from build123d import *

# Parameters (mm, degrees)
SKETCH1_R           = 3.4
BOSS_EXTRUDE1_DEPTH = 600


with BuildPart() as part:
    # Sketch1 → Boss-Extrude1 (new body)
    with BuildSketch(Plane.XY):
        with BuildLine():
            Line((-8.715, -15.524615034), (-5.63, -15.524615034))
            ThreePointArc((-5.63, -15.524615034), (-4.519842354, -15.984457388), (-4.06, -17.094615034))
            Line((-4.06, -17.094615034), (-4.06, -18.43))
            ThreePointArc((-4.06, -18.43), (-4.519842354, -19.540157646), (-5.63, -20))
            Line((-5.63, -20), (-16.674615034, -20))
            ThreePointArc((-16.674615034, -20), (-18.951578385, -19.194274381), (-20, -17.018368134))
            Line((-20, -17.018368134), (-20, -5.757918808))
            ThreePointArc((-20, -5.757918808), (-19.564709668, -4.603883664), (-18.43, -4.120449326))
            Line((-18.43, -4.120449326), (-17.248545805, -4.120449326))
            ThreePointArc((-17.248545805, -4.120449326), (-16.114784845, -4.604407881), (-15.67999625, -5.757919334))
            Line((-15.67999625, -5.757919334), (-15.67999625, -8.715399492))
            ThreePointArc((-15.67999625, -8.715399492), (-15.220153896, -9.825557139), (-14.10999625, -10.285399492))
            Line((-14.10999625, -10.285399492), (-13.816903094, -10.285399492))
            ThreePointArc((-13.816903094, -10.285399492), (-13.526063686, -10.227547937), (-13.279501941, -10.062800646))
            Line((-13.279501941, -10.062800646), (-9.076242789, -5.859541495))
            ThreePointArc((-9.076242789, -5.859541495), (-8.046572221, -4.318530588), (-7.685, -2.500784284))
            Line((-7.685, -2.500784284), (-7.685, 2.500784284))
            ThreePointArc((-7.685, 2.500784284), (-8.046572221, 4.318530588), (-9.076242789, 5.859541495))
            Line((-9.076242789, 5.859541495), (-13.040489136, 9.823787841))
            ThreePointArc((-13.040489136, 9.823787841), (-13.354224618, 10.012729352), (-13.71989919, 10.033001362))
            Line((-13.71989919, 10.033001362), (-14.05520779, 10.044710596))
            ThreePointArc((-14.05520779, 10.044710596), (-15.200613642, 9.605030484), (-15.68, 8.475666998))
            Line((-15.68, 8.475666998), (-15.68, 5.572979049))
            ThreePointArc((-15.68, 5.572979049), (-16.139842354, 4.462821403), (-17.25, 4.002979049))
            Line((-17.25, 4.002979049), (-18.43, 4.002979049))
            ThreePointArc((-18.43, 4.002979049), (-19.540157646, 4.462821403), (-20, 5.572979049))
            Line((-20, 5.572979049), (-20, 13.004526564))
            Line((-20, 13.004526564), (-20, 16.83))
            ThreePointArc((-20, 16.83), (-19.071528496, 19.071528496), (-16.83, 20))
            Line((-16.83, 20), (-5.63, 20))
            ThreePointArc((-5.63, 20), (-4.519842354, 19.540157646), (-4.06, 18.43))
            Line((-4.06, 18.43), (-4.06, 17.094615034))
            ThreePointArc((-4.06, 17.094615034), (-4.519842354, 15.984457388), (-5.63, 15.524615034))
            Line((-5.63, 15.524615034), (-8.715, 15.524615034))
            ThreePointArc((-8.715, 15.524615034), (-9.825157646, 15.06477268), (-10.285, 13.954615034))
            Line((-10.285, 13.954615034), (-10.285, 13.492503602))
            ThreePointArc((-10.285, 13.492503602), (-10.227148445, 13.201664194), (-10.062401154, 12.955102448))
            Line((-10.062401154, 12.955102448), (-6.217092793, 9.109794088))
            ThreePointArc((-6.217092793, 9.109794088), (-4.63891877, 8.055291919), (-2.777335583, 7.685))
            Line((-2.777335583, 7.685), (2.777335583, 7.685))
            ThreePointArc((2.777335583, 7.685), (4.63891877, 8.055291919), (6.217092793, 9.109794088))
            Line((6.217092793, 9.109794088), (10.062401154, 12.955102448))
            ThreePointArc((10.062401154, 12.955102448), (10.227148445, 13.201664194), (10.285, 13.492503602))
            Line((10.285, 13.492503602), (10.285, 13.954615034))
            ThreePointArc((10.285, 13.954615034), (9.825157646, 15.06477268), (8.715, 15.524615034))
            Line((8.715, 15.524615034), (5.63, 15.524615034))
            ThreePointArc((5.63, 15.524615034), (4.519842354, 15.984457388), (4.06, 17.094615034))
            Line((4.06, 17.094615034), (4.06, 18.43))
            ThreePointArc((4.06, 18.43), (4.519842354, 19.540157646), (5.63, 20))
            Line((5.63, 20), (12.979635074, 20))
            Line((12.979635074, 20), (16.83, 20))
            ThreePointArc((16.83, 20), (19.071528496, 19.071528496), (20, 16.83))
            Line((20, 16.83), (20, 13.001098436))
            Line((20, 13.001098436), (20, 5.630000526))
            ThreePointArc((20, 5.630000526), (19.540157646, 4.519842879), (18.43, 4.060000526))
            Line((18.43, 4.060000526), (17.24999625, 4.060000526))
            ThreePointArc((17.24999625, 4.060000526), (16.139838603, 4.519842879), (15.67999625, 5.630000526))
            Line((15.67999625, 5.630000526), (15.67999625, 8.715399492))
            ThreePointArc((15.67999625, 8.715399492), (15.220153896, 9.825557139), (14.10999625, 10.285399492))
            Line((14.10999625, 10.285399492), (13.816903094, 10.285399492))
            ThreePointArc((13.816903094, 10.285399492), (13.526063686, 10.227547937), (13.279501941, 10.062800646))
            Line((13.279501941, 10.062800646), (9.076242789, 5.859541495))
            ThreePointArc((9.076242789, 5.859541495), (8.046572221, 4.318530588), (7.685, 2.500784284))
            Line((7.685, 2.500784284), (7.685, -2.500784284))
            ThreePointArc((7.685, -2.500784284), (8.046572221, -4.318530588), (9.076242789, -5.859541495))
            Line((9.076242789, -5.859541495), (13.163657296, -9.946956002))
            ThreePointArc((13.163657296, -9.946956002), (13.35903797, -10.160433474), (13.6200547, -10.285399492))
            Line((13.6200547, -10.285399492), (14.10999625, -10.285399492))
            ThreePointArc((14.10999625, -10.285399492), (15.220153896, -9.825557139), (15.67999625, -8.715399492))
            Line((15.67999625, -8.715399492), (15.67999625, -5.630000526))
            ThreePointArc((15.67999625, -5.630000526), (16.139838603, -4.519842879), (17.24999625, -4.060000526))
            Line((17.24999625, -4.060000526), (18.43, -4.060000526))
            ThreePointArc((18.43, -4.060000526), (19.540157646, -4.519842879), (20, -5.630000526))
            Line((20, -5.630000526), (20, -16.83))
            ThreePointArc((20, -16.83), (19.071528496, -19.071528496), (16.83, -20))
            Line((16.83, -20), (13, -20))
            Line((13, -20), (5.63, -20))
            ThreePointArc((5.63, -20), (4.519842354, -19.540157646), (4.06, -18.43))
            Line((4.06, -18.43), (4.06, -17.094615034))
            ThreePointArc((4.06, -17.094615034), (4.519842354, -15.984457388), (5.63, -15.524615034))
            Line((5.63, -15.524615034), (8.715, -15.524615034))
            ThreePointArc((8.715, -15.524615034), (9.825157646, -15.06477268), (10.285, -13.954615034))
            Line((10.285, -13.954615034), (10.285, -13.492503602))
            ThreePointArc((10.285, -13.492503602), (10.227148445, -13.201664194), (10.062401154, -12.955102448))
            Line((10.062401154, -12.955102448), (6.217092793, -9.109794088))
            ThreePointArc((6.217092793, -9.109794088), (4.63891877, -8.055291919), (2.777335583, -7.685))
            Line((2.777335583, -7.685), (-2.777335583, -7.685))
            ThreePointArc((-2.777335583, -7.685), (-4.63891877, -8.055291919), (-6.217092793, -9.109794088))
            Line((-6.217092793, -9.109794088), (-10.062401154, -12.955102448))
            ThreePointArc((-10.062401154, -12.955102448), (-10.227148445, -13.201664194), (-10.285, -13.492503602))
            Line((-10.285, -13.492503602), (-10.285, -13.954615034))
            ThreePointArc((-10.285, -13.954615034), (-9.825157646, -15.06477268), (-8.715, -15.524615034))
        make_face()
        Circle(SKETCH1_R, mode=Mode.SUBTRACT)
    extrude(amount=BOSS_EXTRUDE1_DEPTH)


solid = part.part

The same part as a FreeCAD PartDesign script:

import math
import FreeCAD as App
import Part
import Sketcher
Q = App.Units.Quantity

doc = App.newDocument("Part")
params = doc.addObject("Spreadsheet::Sheet", "Params")
for row, (alias, value) in enumerate([
    ("sketch1_diameter", "6.8 mm"),
    ("sketch1_radius", "1.57 mm"),
    ("sketch1_radius2", "0.76 mm"),
    ("sketch1_radius3", "3.17 mm"),
    ("sketch1_radius4", "4.75 mm"),
    ("pad1_length", "600 mm"),
], start=1):
    params.set(f"A{row}", alias)
    params.set(f"B{row}", "=" + value)
    params.setAlias(f"B{row}", alias)

body = doc.addObject("PartDesign::Body", "Body")

# Sketch on XY plane
sketch1 = body.newObject("Sketcher::SketchObject", "Sketch")
sketch1.AttachmentSupport = (doc.getObject("XY_Plane"), [""])
sketch1.MapMode = "FlatFace"
sketch1.addGeometry([
    Part.LineSegment(App.Vector(-5.63, -15.52, 0), App.Vector(-8.71, -15.52, 0)),  # 0
    Part.ArcOfCircle(Part.Circle(App.Vector(-8.71, -13.95, 0), App.Vector(0, 0, 1), 1.57), math.radians(-180), math.radians(-90)),  # 1
    Part.LineSegment(App.Vector(-10.29, -13.95, 0), App.Vector(-10.29, -13.49, 0)),  # 2
    Part.ArcOfCircle(Part.Circle(App.Vector(-9.52, -13.49, 0), App.Vector(0, 0, 1), 0.76), math.radians(135), math.radians(180)),  # 3
    Part.LineSegment(App.Vector(-10.06, -12.96, 0), App.Vector(-6.22, -9.11, 0)),  # 4
    Part.ArcOfCircle(Part.Circle(App.Vector(-2.78, -12.55, 0), App.Vector(0, 0, 1), 4.86), math.radians(90), math.radians(135)),  # 5
    Part.LineSegment(App.Vector(-2.78, -7.68, 0), App.Vector(2.78, -7.68, 0)),  # 6
    Part.ArcOfCircle(Part.Circle(App.Vector(2.78, -12.55, 0), App.Vector(0, 0, 1), 4.86), math.radians(45), math.radians(90)),  # 7
    Part.LineSegment(App.Vector(6.22, -9.11, 0), App.Vector(10.06, -12.96, 0)),  # 8
    Part.ArcOfCircle(Part.Circle(App.Vector(9.52, -13.49, 0), App.Vector(0, 0, 1), 0.76), math.radians(0), math.radians(45)),  # 9
    Part.LineSegment(App.Vector(10.29, -13.49, 0), App.Vector(10.29, -13.95, 0)),  # 10
    Part.ArcOfCircle(Part.Circle(App.Vector(8.71, -13.95, 0), App.Vector(0, 0, 1), 1.57), math.radians(-90), math.radians(0)),  # 11
    Part.LineSegment(App.Vector(8.71, -15.52, 0), App.Vector(5.63, -15.52, 0)),  # 12
    Part.ArcOfCircle(Part.Circle(App.Vector(5.63, -17.09, 0), App.Vector(0, 0, 1), 1.57), math.radians(90), math.radians(180)),  # 13
    Part.LineSegment(App.Vector(4.06, -17.09, 0), App.Vector(4.06, -18.43, 0)),  # 14
    Part.ArcOfCircle(Part.Circle(App.Vector(5.63, -18.43, 0), App.Vector(0, 0, 1), 1.57), math.radians(-180), math.radians(-90)),  # 15
    Part.LineSegment(App.Vector(5.63, -20, 0), App.Vector(16.83, -20, 0)),  # 16
    Part.ArcOfCircle(Part.Circle(App.Vector(16.83, -16.83, 0), App.Vector(0, 0, 1), 3.17), math.radians(-90), math.radians(0)),  # 17
    Part.LineSegment(App.Vector(20, -16.83, 0), App.Vector(20, -5.63, 0)),  # 18
    Part.ArcOfCircle(Part.Circle(App.Vector(18.43, -5.63, 0), App.Vector(0, 0, 1), 1.57), math.radians(0), math.radians(90)),  # 19
    Part.LineSegment(App.Vector(18.43, -4.06, 0), App.Vector(17.25, -4.06, 0)),  # 20
    Part.ArcOfCircle(Part.Circle(App.Vector(17.25, -5.63, 0), App.Vector(0, 0, 1), 1.57), math.radians(90), math.radians(180)),  # 21
    Part.LineSegment(App.Vector(15.68, -5.63, 0), App.Vector(15.68, -8.72, 0)),  # 22
    Part.ArcOfCircle(Part.Circle(App.Vector(14.11, -8.72, 0), App.Vector(0, 0, 1), 1.57), math.radians(-90), math.radians(0)),  # 23
    Part.LineSegment(App.Vector(14.11, -10.29, 0), App.Vector(13.62, -10.29, 0)),  # 24
    Part.ArcOfCircle(Part.Circle(App.Vector(13.81, -9.55, 0), App.Vector(0, 0, 1), 0.76), math.radians(-149), math.radians(-105)),  # 25
    Part.LineSegment(App.Vector(13.16, -9.95, 0), App.Vector(9.08, -5.86, 0)),  # 26
    Part.ArcOfCircle(Part.Circle(App.Vector(12.44, -2.5, 0), App.Vector(0, 0, 1), 4.75), math.radians(-180), math.radians(-135)),  # 27
    Part.LineSegment(App.Vector(7.68, -2.5, 0), App.Vector(7.68, 2.5, 0)),  # 28
    Part.ArcOfCircle(Part.Circle(App.Vector(12.44, 2.5, 0), App.Vector(0, 0, 1), 4.75), math.radians(135), math.radians(180)),  # 29
    Part.LineSegment(App.Vector(9.08, 5.86, 0), App.Vector(13.28, 10.06, 0)),  # 30
    Part.ArcOfCircle(Part.Circle(App.Vector(13.82, 9.53, 0), App.Vector(0, 0, 1), 0.76), math.radians(90), math.radians(135)),  # 31
    Part.LineSegment(App.Vector(13.82, 10.29, 0), App.Vector(14.11, 10.29, 0)),  # 32
    Part.ArcOfCircle(Part.Circle(App.Vector(14.11, 8.72, 0), App.Vector(0, 0, 1), 1.57), math.radians(0), math.radians(90)),  # 33
    Part.LineSegment(App.Vector(15.68, 8.72, 0), App.Vector(15.68, 5.63, 0)),  # 34
    Part.ArcOfCircle(Part.Circle(App.Vector(17.25, 5.63, 0), App.Vector(0, 0, 1), 1.57), math.radians(180), math.radians(270)),  # 35
    Part.LineSegment(App.Vector(17.25, 4.06, 0), App.Vector(18.43, 4.06, 0)),  # 36
    Part.ArcOfCircle(Part.Circle(App.Vector(18.43, 5.63, 0), App.Vector(0, 0, 1), 1.57), math.radians(-90), math.radians(0)),  # 37
    Part.LineSegment(App.Vector(20, 5.63, 0), App.Vector(20, 16.83, 0)),  # 38
    Part.ArcOfCircle(Part.Circle(App.Vector(16.83, 16.83, 0), App.Vector(0, 0, 1), 3.17), math.radians(0), math.radians(90)),  # 39
    Part.LineSegment(App.Vector(16.83, 20, 0), App.Vector(5.63, 20, 0)),  # 40
    Part.ArcOfCircle(Part.Circle(App.Vector(5.63, 18.43, 0), App.Vector(0, 0, 1), 1.57), math.radians(90), math.radians(180)),  # 41
    Part.LineSegment(App.Vector(4.06, 18.43, 0), App.Vector(4.06, 17.09, 0)),  # 42
    Part.ArcOfCircle(Part.Circle(App.Vector(5.63, 17.09, 0), App.Vector(0, 0, 1), 1.57), math.radians(-180), math.radians(-90)),  # 43
    Part.LineSegment(App.Vector(5.63, 15.52, 0), App.Vector(8.71, 15.52, 0)),  # 44
    Part.ArcOfCircle(Part.Circle(App.Vector(8.71, 13.95, 0), App.Vector(0, 0, 1), 1.57), math.radians(0), math.radians(90)),  # 45
    Part.LineSegment(App.Vector(10.29, 13.95, 0), App.Vector(10.29, 13.49, 0)),  # 46
    Part.ArcOfCircle(Part.Circle(App.Vector(9.52, 13.49, 0), App.Vector(0, 0, 1), 0.76), math.radians(-45), math.radians(0)),  # 47
    Part.LineSegment(App.Vector(10.06, 12.96, 0), App.Vector(6.22, 9.11, 0)),  # 48
    Part.ArcOfCircle(Part.Circle(App.Vector(2.78, 12.55, 0), App.Vector(0, 0, 1), 4.86), math.radians(-90), math.radians(-45)),  # 49
    Part.LineSegment(App.Vector(2.78, 7.68, 0), App.Vector(-2.78, 7.68, 0)),  # 50
    Part.ArcOfCircle(Part.Circle(App.Vector(-2.78, 12.55, 0), App.Vector(0, 0, 1), 4.86), math.radians(-135), math.radians(-90)),  # 51
    Part.LineSegment(App.Vector(-6.22, 9.11, 0), App.Vector(-10.06, 12.96, 0)),  # 52
    Part.ArcOfCircle(Part.Circle(App.Vector(-9.52, 13.49, 0), App.Vector(0, 0, 1), 0.76), math.radians(180), math.radians(225)),  # 53
    Part.LineSegment(App.Vector(-10.29, 13.49, 0), App.Vector(-10.29, 13.95, 0)),  # 54
    Part.ArcOfCircle(Part.Circle(App.Vector(-8.71, 13.95, 0), App.Vector(0, 0, 1), 1.57), math.radians(90), math.radians(180)),  # 55
    Part.LineSegment(App.Vector(-8.71, 15.52, 0), App.Vector(-5.63, 15.52, 0)),  # 56
    Part.ArcOfCircle(Part.Circle(App.Vector(-5.63, 17.09, 0), App.Vector(0, 0, 1), 1.57), math.radians(-90), math.radians(0)),  # 57
    Part.LineSegment(App.Vector(-4.06, 17.09, 0), App.Vector(-4.06, 18.43, 0)),  # 58
    Part.ArcOfCircle(Part.Circle(App.Vector(-5.63, 18.43, 0), App.Vector(0, 0, 1), 1.57), math.radians(0), math.radians(90)),  # 59
    Part.LineSegment(App.Vector(-5.63, 20, 0), App.Vector(-16.83, 20, 0)),  # 60
    Part.ArcOfCircle(Part.Circle(App.Vector(-16.83, 16.83, 0), App.Vector(0, 0, 1), 3.17), math.radians(90), math.radians(180)),  # 61
    Part.LineSegment(App.Vector(-20, 16.83, 0), App.Vector(-20, 5.57, 0)),  # 62
    Part.ArcOfCircle(Part.Circle(App.Vector(-18.43, 5.57, 0), App.Vector(0, 0, 1), 1.57), math.radians(-180), math.radians(-90)),  # 63
    Part.LineSegment(App.Vector(-18.43, 4, 0), App.Vector(-17.25, 4, 0)),  # 64
    Part.ArcOfCircle(Part.Circle(App.Vector(-17.25, 5.57, 0), App.Vector(0, 0, 1), 1.57), math.radians(-90), math.radians(0)),  # 65
    Part.LineSegment(App.Vector(-15.68, 5.57, 0), App.Vector(-15.68, 8.48, 0)),  # 66
    Part.ArcOfCircle(Part.Circle(App.Vector(-14.11, 8.48, 0), App.Vector(0, 0, 1), 1.57), math.radians(88), math.radians(180)),  # 67
    Part.LineSegment(App.Vector(-14.06, 10.04, 0), App.Vector(-13.72, 10.03, 0)),  # 68
    Part.ArcOfCircle(Part.Circle(App.Vector(-13.58, 9.29, 0), App.Vector(0, 0, 1), 0.76), math.radians(45), math.radians(101)),  # 69
    Part.LineSegment(App.Vector(-13.04, 9.82, 0), App.Vector(-9.08, 5.86, 0)),  # 70
    Part.ArcOfCircle(Part.Circle(App.Vector(-12.44, 2.5, 0), App.Vector(0, 0, 1), 4.75), math.radians(0), math.radians(45)),  # 71
    Part.LineSegment(App.Vector(-7.68, 2.5, 0), App.Vector(-7.68, -2.5, 0)),  # 72
    Part.ArcOfCircle(Part.Circle(App.Vector(-12.44, -2.5, 0), App.Vector(0, 0, 1), 4.75), math.radians(-45), math.radians(0)),  # 73
    Part.LineSegment(App.Vector(-9.08, -5.86, 0), App.Vector(-13.28, -10.06, 0)),  # 74
    Part.ArcOfCircle(Part.Circle(App.Vector(-13.82, -9.53, 0), App.Vector(0, 0, 1), 0.76), math.radians(-90), math.radians(-45)),  # 75
    Part.LineSegment(App.Vector(-13.82, -10.29, 0), App.Vector(-14.11, -10.29, 0)),  # 76
    Part.ArcOfCircle(Part.Circle(App.Vector(-14.11, -8.72, 0), App.Vector(0, 0, 1), 1.57), math.radians(180), math.radians(270)),  # 77
    Part.LineSegment(App.Vector(-15.68, -8.72, 0), App.Vector(-15.68, -5.76, 0)),  # 78
    Part.ArcOfCircle(Part.Circle(App.Vector(-17.25, -5.69, 0), App.Vector(0, 0, 1), 1.57), math.radians(-2), math.radians(90)),  # 79
    Part.LineSegment(App.Vector(-17.25, -4.12, 0), App.Vector(-18.43, -4.12, 0)),  # 80
    Part.ArcOfCircle(Part.Circle(App.Vector(-18.43, -5.69, 0), App.Vector(0, 0, 1), 1.57), math.radians(90), math.radians(182)),  # 81
    Part.LineSegment(App.Vector(-20, -5.76, 0), App.Vector(-20, -17.02, 0)),  # 82
    Part.ArcOfCircle(Part.Circle(App.Vector(-16.84, -16.83, 0), App.Vector(0, 0, 1), 3.17), math.radians(-177), math.radians(-87)),  # 83
    Part.LineSegment(App.Vector(-16.67, -20, 0), App.Vector(-5.63, -20, 0)),  # 84
    Part.ArcOfCircle(Part.Circle(App.Vector(-5.63, -18.43, 0), App.Vector(0, 0, 1), 1.57), math.radians(-90), math.radians(0)),  # 85
    Part.LineSegment(App.Vector(-4.06, -18.43, 0), App.Vector(-4.06, -17.09, 0)),  # 86
    Part.ArcOfCircle(Part.Circle(App.Vector(-5.63, -17.09, 0), App.Vector(0, 0, 1), 1.57), math.radians(0), math.radians(90)),  # 87
    Part.Circle(App.Vector(0, 0, 0), App.Vector(0, 0, 1), 3.4),  # 88
], False)
sketch1.addConstraint([
    Sketcher.Constraint("Tangent", 0, 2, 1, 2),
    Sketcher.Constraint("Tangent", 1, 1, 2, 1),
    Sketcher.Constraint("Tangent", 2, 2, 3, 2),
    Sketcher.Constraint("Tangent", 3, 1, 4, 1),
    Sketcher.Constraint("Tangent", 4, 2, 5, 2),
    Sketcher.Constraint("Tangent", 5, 1, 6, 1),
    Sketcher.Constraint("Tangent", 6, 2, 7, 2),
    Sketcher.Constraint("Tangent", 7, 1, 8, 1),
    Sketcher.Constraint("Tangent", 8, 2, 9, 2),
    Sketcher.Constraint("Tangent", 9, 1, 10, 1),
    Sketcher.Constraint("Tangent", 10, 2, 11, 2),
    Sketcher.Constraint("Tangent", 11, 1, 12, 1),
    Sketcher.Constraint("Tangent", 12, 2, 13, 1),
    Sketcher.Constraint("Tangent", 13, 2, 14, 1),
    Sketcher.Constraint("Tangent", 14, 2, 15, 1),
    Sketcher.Constraint("Tangent", 15, 2, 16, 1),
    Sketcher.Constraint("Tangent", 16, 2, 17, 1),
    Sketcher.Constraint("Tangent", 17, 2, 18, 1),
    Sketcher.Constraint("Tangent", 18, 2, 19, 1),
    Sketcher.Constraint("Tangent", 19, 2, 20, 1),
    Sketcher.Constraint("Tangent", 20, 2, 21, 1),
    Sketcher.Constraint("Tangent", 21, 2, 22, 1),
    Sketcher.Constraint("Tangent", 22, 2, 23, 2),
    Sketcher.Constraint("Tangent", 23, 1, 24, 1),
    Sketcher.Constraint("Coincident", 24, 2, 25, 2),
    Sketcher.Constraint("Coincident", 25, 1, 26, 1),
    Sketcher.Constraint("Tangent", 26, 2, 27, 2),
    Sketcher.Constraint("Tangent", 27, 1, 28, 1),
    Sketcher.Constraint("Tangent", 28, 2, 29, 2),
    Sketcher.Constraint("Tangent", 29, 1, 30, 1),
    Sketcher.Constraint("Tangent", 30, 2, 31, 2),
    Sketcher.Constraint("Tangent", 31, 1, 32, 1),
    Sketcher.Constraint("Tangent", 32, 2, 33, 2),
    Sketcher.Constraint("Tangent", 33, 1, 34, 1),
    Sketcher.Constraint("Tangent", 34, 2, 35, 1),
    Sketcher.Constraint("Tangent", 35, 2, 36, 1),
    Sketcher.Constraint("Tangent", 36, 2, 37, 1),
    Sketcher.Constraint("Tangent", 37, 2, 38, 1),
    Sketcher.Constraint("Tangent", 38, 2, 39, 1),
    Sketcher.Constraint("Tangent", 39, 2, 40, 1),
    Sketcher.Constraint("Tangent", 40, 2, 41, 1),
    Sketcher.Constraint("Tangent", 41, 2, 42, 1),
    Sketcher.Constraint("Tangent", 42, 2, 43, 1),
    Sketcher.Constraint("Tangent", 43, 2, 44, 1),
    Sketcher.Constraint("Tangent", 44, 2, 45, 2),
    Sketcher.Constraint("Tangent", 45, 1, 46, 1),
    Sketcher.Constraint("Tangent", 46, 2, 47, 2),
    Sketcher.Constraint("Tangent", 47, 1, 48, 1),
    Sketcher.Constraint("Tangent", 48, 2, 49, 2),
    Sketcher.Constraint("Tangent", 49, 1, 50, 1),
    Sketcher.Constraint("Tangent", 50, 2, 51, 2),
    Sketcher.Constraint("Tangent", 51, 1, 52, 1),
    Sketcher.Constraint("Tangent", 52, 2, 53, 2),
    Sketcher.Constraint("Tangent", 53, 1, 54, 1),
    Sketcher.Constraint("Tangent", 54, 2, 55, 2),
    Sketcher.Constraint("Tangent", 55, 1, 56, 1),
    Sketcher.Constraint("Tangent", 56, 2, 57, 1),
    Sketcher.Constraint("Tangent", 57, 2, 58, 1),
    Sketcher.Constraint("Tangent", 58, 2, 59, 1),
    Sketcher.Constraint("Tangent", 59, 2, 60, 1),
    Sketcher.Constraint("Tangent", 60, 2, 61, 1),
    Sketcher.Constraint("Tangent", 61, 2, 62, 1),
    Sketcher.Constraint("Tangent", 62, 2, 63, 1),
    Sketcher.Constraint("Tangent", 63, 2, 64, 1),
    Sketcher.Constraint("Tangent", 64, 2, 65, 1),
    Sketcher.Constraint("Tangent", 65, 2, 66, 1),
    Sketcher.Constraint("Tangent", 66, 2, 67, 2),
    Sketcher.Constraint("Tangent", 67, 1, 68, 1),
    Sketcher.Constraint("Coincident", 68, 2, 69, 2),
    Sketcher.Constraint("Tangent", 69, 1, 70, 1),
    Sketcher.Constraint("Tangent", 70, 2, 71, 2),
    Sketcher.Constraint("Tangent", 71, 1, 72, 1),
    Sketcher.Constraint("Tangent", 72, 2, 73, 2),
    Sketcher.Constraint("Tangent", 73, 1, 74, 1),
    Sketcher.Constraint("Tangent", 74, 2, 75, 2),
    Sketcher.Constraint("Tangent", 75, 1, 76, 1),
    Sketcher.Constraint("Tangent", 76, 2, 77, 2),
    Sketcher.Constraint("Tangent", 77, 1, 78, 1),
    Sketcher.Constraint("Coincident", 78, 2, 79, 1),
    Sketcher.Constraint("Tangent", 79, 2, 80, 1),
    Sketcher.Constraint("Coincident", 80, 2, 81, 1),
    Sketcher.Constraint("Coincident", 81, 2, 82, 1),
    Sketcher.Constraint("Coincident", 82, 2, 83, 1),
    Sketcher.Constraint("Coincident", 83, 2, 84, 1),
    Sketcher.Constraint("Tangent", 84, 2, 85, 1),
    Sketcher.Constraint("Tangent", 85, 2, 86, 1),
    Sketcher.Constraint("Tangent", 86, 2, 87, 1),
    Sketcher.Constraint("Tangent", 87, 2, 0, 1),
    Sketcher.Constraint("Horizontal", 0),
    Sketcher.Constraint("Vertical", 2),
    Sketcher.Constraint("Horizontal", 6),
    Sketcher.Constraint("Vertical", 10),
    Sketcher.Constraint("Horizontal", 12),
    Sketcher.Constraint("Vertical", 14),
    Sketcher.Constraint("Horizontal", 16),
    Sketcher.Constraint("Vertical", 18),
    Sketcher.Constraint("Horizontal", 20),
    Sketcher.Constraint("Vertical", 22),
    Sketcher.Constraint("Horizontal", 24),
    Sketcher.Constraint("Vertical", 28),
    Sketcher.Constraint("Horizontal", 32),
    Sketcher.Constraint("Vertical", 34),
    Sketcher.Constraint("Horizontal", 36),
    Sketcher.Constraint("Vertical", 38),
    Sketcher.Constraint("Horizontal", 40),
    Sketcher.Constraint("Vertical", 42),
    Sketcher.Constraint("Horizontal", 44),
    Sketcher.Constraint("Vertical", 46),
    Sketcher.Constraint("Horizontal", 50),
    Sketcher.Constraint("Vertical", 54),
    Sketcher.Constraint("Horizontal", 56),
    Sketcher.Constraint("Vertical", 58),
    Sketcher.Constraint("Horizontal", 60),
    Sketcher.Constraint("Vertical", 62),
    Sketcher.Constraint("Horizontal", 64),
    Sketcher.Constraint("Vertical", 66),
    Sketcher.Constraint("Vertical", 72),
    Sketcher.Constraint("Horizontal", 76),
    Sketcher.Constraint("Vertical", 78),
    Sketcher.Constraint("Horizontal", 80),
    Sketcher.Constraint("Vertical", 82),
    Sketcher.Constraint("Horizontal", 84),
    Sketcher.Constraint("Vertical", 86),
    Sketcher.Constraint("Coincident", 88, 3, -1, 1),
    Sketcher.Constraint("Equal", 5, 7),
    Sketcher.Constraint("Equal", 3, 9),
    Sketcher.Constraint("Equal", 1, 11),
    Sketcher.Constraint("Equal", 11, 13),
    Sketcher.Constraint("Equal", 13, 15),
    Sketcher.Constraint("Equal", 15, 19),
    Sketcher.Constraint("Equal", 19, 21),
    Sketcher.Constraint("Equal", 21, 23),
    Sketcher.Constraint("Equal", 9, 25),
    Sketcher.Constraint("Equal", 27, 29),
    Sketcher.Constraint("Equal", 25, 31),
    Sketcher.Constraint("Equal", 23, 33),
    Sketcher.Constraint("Equal", 33, 35),
    Sketcher.Constraint("Equal", 35, 37),
    Sketcher.Constraint("Equal", 17, 39),
    Sketcher.Constraint("Equal", 37, 41),
    Sketcher.Constraint("Equal", 41, 43),
    Sketcher.Constraint("Equal", 43, 45),
    Sketcher.Constraint("Equal", 31, 47),
    Sketcher.Constraint("Equal", 7, 49),
    Sketcher.Constraint("Equal", 49, 51),
    Sketcher.Constraint("Equal", 47, 53),
    Sketcher.Constraint("Equal", 45, 55),
    Sketcher.Constraint("Equal", 55, 57),
    Sketcher.Constraint("Equal", 57, 59),
    Sketcher.Constraint("Equal", 39, 61),
    Sketcher.Constraint("Equal", 59, 63),
    Sketcher.Constraint("Equal", 63, 65),
    Sketcher.Constraint("Equal", 65, 67),
    Sketcher.Constraint("Equal", 53, 69),
    Sketcher.Constraint("Equal", 29, 71),
    Sketcher.Constraint("Equal", 71, 73),
    Sketcher.Constraint("Equal", 69, 75),
    Sketcher.Constraint("Equal", 67, 77),
    Sketcher.Constraint("Equal", 77, 79),
    Sketcher.Constraint("Equal", 79, 81),
    Sketcher.Constraint("Equal", 61, 83),
    Sketcher.Constraint("Equal", 81, 85),
    Sketcher.Constraint("Equal", 85, 87),
    Sketcher.Constraint("Symmetric", 1, 3, 45, 3, -1, 1),
    Sketcher.Constraint("Symmetric", 5, 3, 49, 3, -1, 1),
    Sketcher.Constraint("Symmetric", 9, 3, 53, 3, -1, 1),
    Sketcher.Constraint("Symmetric", 13, 3, 57, 3, -1, 1),
    Sketcher.Constraint("Symmetric", 17, 3, 61, 3, -1, 1),
    Sketcher.Constraint("Symmetric", 27, 3, 71, 3, -1, 1),
    Sketcher.Constraint("Symmetric", 31, 3, 75, 3, -1, 1),
    Sketcher.Constraint("Symmetric", 41, 3, 85, 3, -1, 1),
    Sketcher.Constraint("Symmetric", 3, 3, 9, 3, -2),
    Sketcher.Constraint("Symmetric", 43, 3, 57, 3, -2),
    Sketcher.Constraint("Symmetric", 39, 3, 61, 3, -2),
    Sketcher.Constraint("Symmetric", 23, 3, 77, 3, -2),
    Sketcher.Constraint("Symmetric", 48, 2, 51, 1, -2),
    Sketcher.Constraint("Symmetric", 29, 1, 70, 2, -2),
    Sketcher.Constraint("Symmetric", 26, 2, 73, 1, -2),
    Sketcher.Constraint("Symmetric", 21, 3, 35, 3, -1),
    Sketcher.Constraint("Perpendicular", 4, 8),
    Sketcher.Constraint("Parallel", 8, 26),
    Sketcher.Constraint("Perpendicular", 26, 30),
    Sketcher.Constraint("Horizontal", 78, 2, 81, 2),
    Sketcher.Constraint("Vertical", 63, 2, 80, 2),
    Sketcher.Constraint("Vertical", 62, 2, 81, 2),
    Sketcher.Constraint("Equal", 60, 18),
    Sketcher.Constraint("Diameter", 88, Q("6.8 mm")),
    Sketcher.Constraint("Angle", 68, Q("-2 deg")),
    Sketcher.Constraint("Radius", 1, Q("1.57 mm")),
    Sketcher.Constraint("Radius", 3, Q("0.76 mm")),
    Sketcher.Constraint("Radius", 17, Q("3.17 mm")),
    Sketcher.Constraint("Radius", 27, Q("4.75 mm")),
    Sketcher.Constraint("DistanceX", 16, 1, 16, 2, Q("11.2 mm")),
    Sketcher.Constraint("DistanceY", 15, 2, -1, 1, Q("20 mm")),
    Sketcher.Constraint("DistanceX", -1, 1, 17, 2, Q("20 mm")),
    Sketcher.Constraint("DistanceX", 64, 1, 64, 2, Q("1.18 mm")),
    Sketcher.Constraint("DistanceX", 0, 2, 0, 1, Q("3.085 mm")),
    Sketcher.Constraint("Radius", 5, Q("4.864551 mm")),
    Sketcher.Constraint("DistanceY", 22, 2, 22, 1, Q("3.085399 mm")),
    Sketcher.Constraint("DistanceX", -1, 1, 27, 3, Q("12.435 mm")),
    Sketcher.Constraint("DistanceY", 5, 1, -1, 1, Q("7.685 mm")),
    Sketcher.Constraint("DistanceY", -1, 1, 68, 2, Q("10.033001 mm")),
    Sketcher.Constraint("DistanceX", 6, 1, 6, 2, Q("5.554671 mm")),
    Sketcher.Constraint("DistanceX", 24, 2, 24, 1, Q("0.489942 mm")),
    Sketcher.Constraint("DistanceY", 2, 1, 2, 2, Q("0.462111 mm")),
    Sketcher.Constraint("DistanceY", 28, 1, 28, 2, Q("5.001569 mm")),
    Sketcher.Constraint("DistanceY", 62, 2, 62, 1, Q("11.257021 mm")),
    Sketcher.Constraint("DistanceY", 78, 1, 78, 2, Q("2.95748 mm")),
    Sketcher.Constraint("DistanceY", 82, 2, 82, 1, Q("11.260449 mm")),
    Sketcher.Constraint("DistanceX", 68, 2, -1, 1, Q("13.719899 mm")),
    Sketcher.Constraint("DistanceX", 20, 2, 20, 1, Q("1.180004 mm")),
    Sketcher.Constraint("DistanceX", 80, 2, 80, 1, Q("1.181454 mm")),
    Sketcher.Constraint("DistanceX", 84, 1, 84, 2, Q("11.044615 mm")),
    Sketcher.Constraint("DistanceX", -1, 1, 25, 3, Q("13.811732 mm")),
])
sketch1.setExpression("Constraints[186]", "Params.sketch1_diameter")
sketch1.setExpression("Constraints[188]", "Params.sketch1_radius")
sketch1.setExpression("Constraints[189]", "Params.sketch1_radius2")
sketch1.setExpression("Constraints[190]", "Params.sketch1_radius3")
sketch1.setExpression("Constraints[191]", "Params.sketch1_radius4")
pad1 = body.newObject("PartDesign::Pad", "Pad")
pad1.Profile = sketch1
pad1.setExpression("Length", "Params.pad1_length")

doc.recompute()
